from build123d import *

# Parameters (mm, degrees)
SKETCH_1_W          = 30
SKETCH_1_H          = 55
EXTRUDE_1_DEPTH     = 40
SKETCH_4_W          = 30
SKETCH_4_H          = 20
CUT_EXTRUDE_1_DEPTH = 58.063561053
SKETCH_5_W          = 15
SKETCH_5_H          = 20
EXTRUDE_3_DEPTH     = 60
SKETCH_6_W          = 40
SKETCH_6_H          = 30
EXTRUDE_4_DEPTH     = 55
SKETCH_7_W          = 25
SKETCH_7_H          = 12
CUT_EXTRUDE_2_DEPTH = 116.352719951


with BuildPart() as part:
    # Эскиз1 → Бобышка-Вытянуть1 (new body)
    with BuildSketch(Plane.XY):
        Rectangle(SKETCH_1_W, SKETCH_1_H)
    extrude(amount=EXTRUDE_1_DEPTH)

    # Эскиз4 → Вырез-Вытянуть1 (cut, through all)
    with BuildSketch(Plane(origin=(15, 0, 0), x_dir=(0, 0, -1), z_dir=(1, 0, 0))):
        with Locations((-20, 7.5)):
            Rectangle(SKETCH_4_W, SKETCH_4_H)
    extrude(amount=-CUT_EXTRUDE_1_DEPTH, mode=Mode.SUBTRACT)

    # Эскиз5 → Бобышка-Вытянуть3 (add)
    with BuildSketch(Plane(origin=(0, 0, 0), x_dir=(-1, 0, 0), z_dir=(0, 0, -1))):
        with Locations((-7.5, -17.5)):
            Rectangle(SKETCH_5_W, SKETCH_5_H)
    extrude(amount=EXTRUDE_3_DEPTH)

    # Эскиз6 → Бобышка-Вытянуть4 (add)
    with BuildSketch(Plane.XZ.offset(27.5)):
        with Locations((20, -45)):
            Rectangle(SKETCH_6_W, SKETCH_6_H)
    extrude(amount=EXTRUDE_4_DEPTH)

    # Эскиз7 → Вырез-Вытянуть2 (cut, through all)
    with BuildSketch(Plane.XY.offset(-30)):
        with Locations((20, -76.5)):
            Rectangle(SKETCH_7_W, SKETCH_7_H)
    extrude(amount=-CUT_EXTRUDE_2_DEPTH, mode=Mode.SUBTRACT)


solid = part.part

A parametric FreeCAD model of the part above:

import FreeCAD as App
import Part
import Sketcher

doc = App.newDocument("Part")
body = doc.addObject("PartDesign::Body", "Body")

# Sketch on XY plane
sketch1 = doc.addObject("Sketcher::SketchObject", "Sketch")
body.addObject(sketch1)
sketch1.AttachmentSupport = (doc.XY_Plane, [""])
sketch1.MapMode = "FlatFace"
sketch1.addGeometry(Part.LineSegment(App.Vector(-15, 28, 0), App.Vector(-15, -28, 0)), False)
sketch1.addGeometry(Part.LineSegment(App.Vector(-15, -28, 0), App.Vector(15, -28, 0)), False)
sketch1.addGeometry(Part.LineSegment(App.Vector(15, -28, 0), App.Vector(15, 28, 0)), False)
sketch1.addGeometry(Part.LineSegment(App.Vector(15, 28, 0), App.Vector(-15, 28, 0)), False)
sketch1.addConstraint(Sketcher.Constraint("Coincident", 0, 2, 1, 1))
sketch1.addConstraint(Sketcher.Constraint("Coincident", 1, 2, 2, 1))
sketch1.addConstraint(Sketcher.Constraint("Coincident", 2, 2, 3, 1))
sketch1.addConstraint(Sketcher.Constraint("Coincident", 3, 2, 0, 1))
sketch1.addConstraint(Sketcher.Constraint("Vertical", 0))
sketch1.addConstraint(Sketcher.Constraint("Horizontal", 1))
sketch1.addConstraint(Sketcher.Constraint("Vertical", 2))
sketch1.addConstraint(Sketcher.Constraint("Horizontal", 3))
sketch1.addConstraint(Sketcher.Constraint("Symmetric", 0, 2, 2, 2, -1, 1))
sketch1.addConstraint(Sketcher.Constraint("DistanceX", 1, 1, 1, 2, 30.0))
sketch1.addConstraint(Sketcher.Constraint("DistanceY", 0, 2, 0, 1, 55.0))
pad1 = doc.addObject("PartDesign::Pad", "Pad")
body.addObject(pad1)
pad1.Profile = sketch1
pad1.Length = 40

# Sketch on YZ plane
sketch2 = doc.addObject("Sketcher::SketchObject", "Sketch001")
body.addObject(sketch2)
sketch2.AttachmentSupport = (doc.YZ_Plane, [""])
sketch2.MapMode = "FlatFace"
sketch2.AttachmentOffset = App.Placement(App.Vector(0, 0, 15), App.Rotation())
sketch2.addGeometry(Part.LineSegment(App.Vector(18, 35, 0), App.Vector(-2, 35, 0)), False)
sketch2.addGeometry(Part.LineSegment(App.Vector(-2, 35, 0), App.Vector(-2, 5, 0)), False)
sketch2.addGeometry(Part.LineSegment(App.Vector(-2, 5, 0), App.Vector(18, 5, 0)), False)
sketch2.addGeometry(Part.LineSegment(App.Vector(18, 5, 0), App.Vector(18, 35, 0)), False)
sketch2.addConstraint(Sketcher.Constraint("Coincident", 0, 2, 1, 1))
sketch2.addConstraint(Sketcher.Constraint("Coincident", 1, 2, 2, 1))
sketch2.addConstraint(Sketcher.Constraint("Coincident", 2, 2, 3, 1))
sketch2.addConstraint(Sketcher.Constraint("Coincident", 3, 2, 0, 1))
sketch2.addConstraint(Sketcher.Constraint("Horizontal", 0))
sketch2.addConstraint(Sketcher.Constraint("Vertical", 1))
sketch2.addConstraint(Sketcher.Constraint("Horizontal", 2))
sketch2.addConstraint(Sketcher.Constraint("Vertical", 3))
sketch2.addConstraint(Sketcher.Constraint("DistanceX", 0, 2, 0, 1, 20.0))
sketch2.addConstraint(Sketcher.Constraint("DistanceY", 1, 2, 1, 1, 30.0))
sketch2.addConstraint(Sketcher.Constraint("DistanceY", -1, 1, 0, 2, 35.0))
sketch2.addConstraint(Sketcher.Constraint("DistanceX", 0, 2, -1, 1, 2.5))
pocket1 = doc.addObject("PartDesign::Pocket", "Pocket")
body.addObject(pocket1)
pocket1.Profile = sketch2
pocket1.Type = "ThroughAll"

# Sketch on XY plane
sketch3 = doc.addObject("Sketcher::SketchObject", "Sketch002")
body.addObject(sketch3)
sketch3.AttachmentSupport = (doc.XY_Plane, [""])
sketch3.MapMode = "FlatFace"
sketch3.addGeometry(Part.LineSegment(App.Vector(15, -8, 0), App.Vector(15, -28, 0)), False)
sketch3.addGeometry(Part.LineSegment(App.Vector(15, -28, 0), App.Vector(0, -28, 0)), False)
sketch3.addGeometry(Part.LineSegment(App.Vector(0, -28, 0), App.Vector(0, -8, 0)), False)
sketch3.addGeometry(Part.LineSegment(App.Vector(0, -8, 0), App.Vector(15, -8, 0)), False)
sketch3.addConstraint(Sketcher.Constraint("Coincident", 0, 2, 1, 1))
sketch3.addConstraint(Sketcher.Constraint("Coincident", 1, 2, 2, 1))
sketch3.addConstraint(Sketcher.Constraint("Coincident", 2, 2, 3, 1))
sketch3.addConstraint(Sketcher.Constraint("Coincident", 3, 2, 0, 1))
sketch3.addConstraint(Sketcher.Constraint("Vertical", 0))
sketch3.addConstraint(Sketcher.Constraint("Horizontal", 1))
sketch3.addConstraint(Sketcher.Constraint("Vertical", 2))
sketch3.addConstraint(Sketcher.Constraint("Horizontal", 3))
sketch3.addConstraint(Sketcher.Constraint("PointOnObject", 1, 2, -2))
sketch3.addConstraint(Sketcher.Constraint("DistanceX", 1, 2, 1, 1, 15.0))
sketch3.addConstraint(Sketcher.Constraint("DistanceY", 0, 2, 0, 1, 20.0))
sketch3.addConstraint(Sketcher.Constraint("DistanceY", 0, 2, -1, 1, 27.5))
pad2 = doc.addObject("PartDesign::Pad", "Pad001")
body.addObject(pad2)
pad2.Profile = sketch3
pad2.Length = 60
pad2.Reversed = True

# Sketch on XZ plane
sketch4 = doc.addObject("Sketcher::SketchObject", "Sketch003")
body.addObject(sketch4)
sketch4.AttachmentSupport = (doc.XZ_Plane, [""])
sketch4.MapMode = "FlatFace"
sketch4.AttachmentOffset = App.Placement(App.Vector(0, 0, 27.5), App.Rotation())
sketch4.addGeometry(Part.LineSegment(App.Vector(0, -30, 0), App.Vector(0, -60, 0)), False)
sketch4.addGeometry(Part.LineSegment(App.Vector(0, -60, 0), App.Vector(40, -60, 0)), False)
sketch4.addGeometry(Part.LineSegment(App.Vector(40, -60, 0), App.Vector(40, -30, 0)), False)
sketch4.addGeometry(Part.LineSegment(App.Vector(40, -30, 0), App.Vector(0, -30, 0)), False)
sketch4.addConstraint(Sketcher.Constraint("Coincident", 0, 2, 1, 1))
sketch4.addConstraint(Sketcher.Constraint("Coincident", 1, 2, 2, 1))
sketch4.addConstraint(Sketcher.Constraint("Coincident", 2, 2, 3, 1))
sketch4.addConstraint(Sketcher.Constraint("Coincident", 3, 2, 0, 1))
sketch4.addConstraint(Sketcher.Constraint("Vertical", 0))
sketch4.addConstraint(Sketcher.Constraint("Horizontal", 1))
sketch4.addConstraint(Sketcher.Constraint("Vertical", 2))
sketch4.addConstraint(Sketcher.Constraint("Horizontal", 3))
sketch4.addConstraint(Sketcher.Constraint("PointOnObject", 0, 2, -2))
sketch4.addConstraint(Sketcher.Constraint("DistanceX", 1, 1, 1, 2, 40.0))
sketch4.addConstraint(Sketcher.Constraint("DistanceY", 0, 2, 0, 1, 30.0))
sketch4.addConstraint(Sketcher.Constraint("DistanceY", 0, 2, -1, 1, 60.0))
pad3 = doc.addObject("PartDesign::Pad", "Pad002")
body.addObject(pad3)
pad3.Profile = sketch4
pad3.Length = 55

# Sketch on XY plane
sketch5 = doc.addObject("Sketcher::SketchObject", "Sketch004")
body.addObject(sketch5)
sketch5.AttachmentSupport = (doc.XY_Plane, [""])
sketch5.MapMode = "FlatFace"
sketch5.AttachmentOffset = App.Placement(App.Vector(0, 0, -30), App.Rotation())
sketch5.addGeometry(Part.LineSegment(App.Vector(8, -70, 0), App.Vector(8, -82, 0)), False)
sketch5.addGeometry(Part.LineSegment(App.Vector(8, -82, 0), App.Vector(32, -82, 0)), False)
sketch5.addGeometry(Part.LineSegment(App.Vector(32, -82, 0), App.Vector(32, -70, 0)), False)
sketch5.addGeometry(Part.LineSegment(App.Vector(32, -70, 0), App.Vector(8, -70, 0)), False)
sketch5.addConstraint(Sketcher.Constraint("Coincident", 0, 2, 1, 1))
sketch5.addConstraint(Sketcher.Constraint("Coincident", 1, 2, 2, 1))
sketch5.addConstraint(Sketcher.Constraint("Coincident", 2, 2, 3, 1))
sketch5.addConstraint(Sketcher.Constraint("Coincident", 3, 2, 0, 1))
sketch5.addConstraint(Sketcher.Constraint("Vertical", 0))
sketch5.addConstraint(Sketcher.Constraint("Horizontal", 1))
sketch5.addConstraint(Sketcher.Constraint("Vertical", 2))
sketch5.addConstraint(Sketcher.Constraint("Horizontal", 3))
sketch5.addConstraint(Sketcher.Constraint("DistanceX", 1, 1, 1, 2, 25.0))
sketch5.addConstraint(Sketcher.Constraint("DistanceY", 0, 2, 0, 1, 12.0))
sketch5.addConstraint(Sketcher.Constraint("DistanceX", -1, 1, 0, 2, 7.5))
sketch5.addConstraint(Sketcher.Constraint("DistanceY", 0, 2, -1, 1, 82.5))
pocket2 = doc.addObject("PartDesign::Pocket", "Pocket001")
body.addObject(pocket2)
pocket2.Profile = sketch5
pocket2.Type = "ThroughAll"

doc.recompute()
